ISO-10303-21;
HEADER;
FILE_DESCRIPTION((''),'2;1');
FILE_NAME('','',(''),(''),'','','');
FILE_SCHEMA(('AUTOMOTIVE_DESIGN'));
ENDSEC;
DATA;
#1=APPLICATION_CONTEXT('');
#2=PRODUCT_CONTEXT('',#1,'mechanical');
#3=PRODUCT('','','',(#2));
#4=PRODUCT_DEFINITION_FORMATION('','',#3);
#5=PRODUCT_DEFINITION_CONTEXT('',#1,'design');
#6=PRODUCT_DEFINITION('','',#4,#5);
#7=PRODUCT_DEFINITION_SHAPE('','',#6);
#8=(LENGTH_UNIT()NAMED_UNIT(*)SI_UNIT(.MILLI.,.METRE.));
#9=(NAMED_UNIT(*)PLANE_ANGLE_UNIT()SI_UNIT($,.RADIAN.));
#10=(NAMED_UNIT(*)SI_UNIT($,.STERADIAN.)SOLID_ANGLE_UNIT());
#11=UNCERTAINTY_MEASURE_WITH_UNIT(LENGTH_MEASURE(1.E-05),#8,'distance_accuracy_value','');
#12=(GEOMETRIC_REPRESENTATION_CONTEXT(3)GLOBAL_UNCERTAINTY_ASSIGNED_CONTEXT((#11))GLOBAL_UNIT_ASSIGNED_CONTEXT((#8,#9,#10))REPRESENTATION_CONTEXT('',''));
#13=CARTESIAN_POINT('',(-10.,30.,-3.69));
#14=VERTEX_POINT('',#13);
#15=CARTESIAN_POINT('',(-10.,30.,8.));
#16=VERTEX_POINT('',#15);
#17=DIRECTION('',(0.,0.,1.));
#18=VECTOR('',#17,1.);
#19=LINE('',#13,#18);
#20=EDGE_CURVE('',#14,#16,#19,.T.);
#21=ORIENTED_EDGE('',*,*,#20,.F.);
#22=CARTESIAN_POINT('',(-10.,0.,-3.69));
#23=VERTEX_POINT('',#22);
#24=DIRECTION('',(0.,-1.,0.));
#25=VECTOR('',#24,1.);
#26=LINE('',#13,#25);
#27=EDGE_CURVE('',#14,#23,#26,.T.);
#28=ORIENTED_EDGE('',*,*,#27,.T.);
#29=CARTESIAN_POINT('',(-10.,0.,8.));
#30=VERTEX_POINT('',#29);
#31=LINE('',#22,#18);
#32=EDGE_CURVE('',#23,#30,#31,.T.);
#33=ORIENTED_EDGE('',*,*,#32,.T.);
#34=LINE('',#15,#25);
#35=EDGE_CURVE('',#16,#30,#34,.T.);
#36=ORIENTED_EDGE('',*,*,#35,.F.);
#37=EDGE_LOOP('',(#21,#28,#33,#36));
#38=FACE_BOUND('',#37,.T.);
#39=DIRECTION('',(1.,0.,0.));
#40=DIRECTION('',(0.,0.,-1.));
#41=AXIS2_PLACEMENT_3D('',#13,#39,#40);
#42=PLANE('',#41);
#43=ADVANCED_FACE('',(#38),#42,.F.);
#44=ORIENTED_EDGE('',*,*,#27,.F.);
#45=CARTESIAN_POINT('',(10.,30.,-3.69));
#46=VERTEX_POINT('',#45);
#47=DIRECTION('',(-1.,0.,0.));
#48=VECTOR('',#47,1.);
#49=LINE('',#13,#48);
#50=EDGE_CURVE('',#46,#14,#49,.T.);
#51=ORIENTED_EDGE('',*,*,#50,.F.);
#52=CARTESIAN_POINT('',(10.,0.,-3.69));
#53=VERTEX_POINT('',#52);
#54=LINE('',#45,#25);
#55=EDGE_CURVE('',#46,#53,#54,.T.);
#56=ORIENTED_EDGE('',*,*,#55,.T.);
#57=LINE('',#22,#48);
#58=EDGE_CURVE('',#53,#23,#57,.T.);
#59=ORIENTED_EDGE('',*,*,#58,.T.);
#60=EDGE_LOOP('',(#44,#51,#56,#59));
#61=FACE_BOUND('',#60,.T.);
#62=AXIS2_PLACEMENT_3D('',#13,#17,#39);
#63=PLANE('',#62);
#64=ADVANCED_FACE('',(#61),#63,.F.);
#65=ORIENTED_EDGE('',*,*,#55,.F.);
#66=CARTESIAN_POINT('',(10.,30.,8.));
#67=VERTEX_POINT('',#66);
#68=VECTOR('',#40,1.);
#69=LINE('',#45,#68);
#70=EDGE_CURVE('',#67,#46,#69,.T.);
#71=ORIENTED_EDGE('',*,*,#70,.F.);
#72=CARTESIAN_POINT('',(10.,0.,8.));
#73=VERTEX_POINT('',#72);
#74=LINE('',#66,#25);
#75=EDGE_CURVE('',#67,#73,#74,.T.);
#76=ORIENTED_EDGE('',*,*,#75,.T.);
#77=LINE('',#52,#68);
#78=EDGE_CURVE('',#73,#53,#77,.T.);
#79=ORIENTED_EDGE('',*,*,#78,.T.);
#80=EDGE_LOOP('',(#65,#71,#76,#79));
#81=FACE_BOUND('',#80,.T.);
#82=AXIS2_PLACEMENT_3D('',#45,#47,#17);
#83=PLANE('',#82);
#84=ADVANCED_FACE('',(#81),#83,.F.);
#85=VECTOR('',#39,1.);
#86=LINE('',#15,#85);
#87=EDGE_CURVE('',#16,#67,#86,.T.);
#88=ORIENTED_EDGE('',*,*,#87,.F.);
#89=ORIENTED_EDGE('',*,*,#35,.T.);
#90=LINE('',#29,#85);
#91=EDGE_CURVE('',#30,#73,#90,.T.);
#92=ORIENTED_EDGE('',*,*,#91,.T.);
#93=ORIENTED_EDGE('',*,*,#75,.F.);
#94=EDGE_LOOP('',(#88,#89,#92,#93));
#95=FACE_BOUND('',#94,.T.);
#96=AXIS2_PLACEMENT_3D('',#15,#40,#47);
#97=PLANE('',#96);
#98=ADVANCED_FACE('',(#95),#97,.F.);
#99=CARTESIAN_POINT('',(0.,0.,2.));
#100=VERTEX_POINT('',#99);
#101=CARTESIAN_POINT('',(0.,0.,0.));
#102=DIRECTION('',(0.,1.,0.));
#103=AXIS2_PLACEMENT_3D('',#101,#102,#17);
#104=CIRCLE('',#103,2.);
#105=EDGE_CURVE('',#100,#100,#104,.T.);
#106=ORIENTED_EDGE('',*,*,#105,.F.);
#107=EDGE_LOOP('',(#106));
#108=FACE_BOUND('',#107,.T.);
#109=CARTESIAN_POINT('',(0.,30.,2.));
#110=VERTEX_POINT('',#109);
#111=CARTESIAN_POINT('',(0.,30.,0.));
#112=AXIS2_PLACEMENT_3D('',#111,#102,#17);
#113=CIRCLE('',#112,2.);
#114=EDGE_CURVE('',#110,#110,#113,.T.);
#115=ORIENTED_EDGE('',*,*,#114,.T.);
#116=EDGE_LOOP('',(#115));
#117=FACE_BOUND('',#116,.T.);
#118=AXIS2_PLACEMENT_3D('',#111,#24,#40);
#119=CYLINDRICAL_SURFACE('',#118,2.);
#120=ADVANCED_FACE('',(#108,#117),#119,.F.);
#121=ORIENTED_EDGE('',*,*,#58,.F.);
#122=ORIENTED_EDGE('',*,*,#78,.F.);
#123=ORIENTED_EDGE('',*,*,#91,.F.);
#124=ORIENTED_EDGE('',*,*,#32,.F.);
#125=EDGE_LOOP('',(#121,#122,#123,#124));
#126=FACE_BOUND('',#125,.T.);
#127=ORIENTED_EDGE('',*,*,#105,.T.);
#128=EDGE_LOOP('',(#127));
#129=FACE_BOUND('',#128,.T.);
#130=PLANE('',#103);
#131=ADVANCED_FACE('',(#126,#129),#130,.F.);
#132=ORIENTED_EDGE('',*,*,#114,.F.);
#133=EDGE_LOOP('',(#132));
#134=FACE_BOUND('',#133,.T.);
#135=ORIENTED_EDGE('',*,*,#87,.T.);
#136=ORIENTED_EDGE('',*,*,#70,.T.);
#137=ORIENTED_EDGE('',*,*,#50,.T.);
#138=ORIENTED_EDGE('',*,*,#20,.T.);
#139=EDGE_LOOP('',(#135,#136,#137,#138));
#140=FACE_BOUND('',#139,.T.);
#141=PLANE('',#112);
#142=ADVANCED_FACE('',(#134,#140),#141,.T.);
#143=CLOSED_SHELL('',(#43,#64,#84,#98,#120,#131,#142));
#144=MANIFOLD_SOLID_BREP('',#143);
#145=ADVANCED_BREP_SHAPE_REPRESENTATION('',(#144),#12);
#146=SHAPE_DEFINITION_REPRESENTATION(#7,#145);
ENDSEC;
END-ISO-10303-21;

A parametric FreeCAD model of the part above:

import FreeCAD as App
import Part
import Sketcher
Q = App.Units.Quantity


def add_polygon(sketch, points):
    """Adds a closed chain of lines whose ends are joined by coincident constraints."""
    first, n = sketch.GeometryCount, len(points)
    for a, b in zip(points, points[1:] + points[:1]):
        sketch.addGeometry(Part.LineSegment(App.Vector(*a, 0), App.Vector(*b, 0)), False)
    for i in range(n):
        sketch.addConstraint(Sketcher.Constraint("Coincident", first + i, 2, first + (i + 1) % n, 1))

doc = App.newDocument("Part")
body = doc.addObject("PartDesign::Body", "Body")

# Sketch on XZ plane
sketch1 = body.newObject("Sketcher::SketchObject", "Sketch")
sketch1.AttachmentSupport = (doc.getObject("XZ_Plane"), [""])
sketch1.MapMode = "FlatFace"
add_polygon(sketch1, [(-10, -3.7), (-10, 8), (10, 8), (10, -3.7)])  # lines 0-3
sketch1.addGeometry(Part.Circle(App.Vector(0, 0, 0), App.Vector(0, 0, 1), 2), False)  # 4
sketch1.addConstraint([
    Sketcher.Constraint("Vertical", 0),
    Sketcher.Constraint("Horizontal", 1),
    Sketcher.Constraint("Vertical", 2),
    Sketcher.Constraint("Horizontal", 3),
    Sketcher.Constraint("Coincident", 4, 3, -1, 1),
    Sketcher.Constraint("Diameter", 4, Q("4 mm")),
    Sketcher.Constraint("DistanceX", 1, 1, 1, 2, Q("20 mm")),
    Sketcher.Constraint("DistanceX", 0, 2, -1, 1, Q("10 mm")),
    Sketcher.Constraint("DistanceY", -1, 1, 0, 2, Q("8 mm")),
    Sketcher.Constraint("DistanceY", 0, 1, 0, 2, Q("11.69 mm")),
])
pad1 = body.newObject("PartDesign::Pad", "Pad")
pad1.Profile = sketch1
pad1.Length = 30
pad1.Reversed = True

doc.recompute()
